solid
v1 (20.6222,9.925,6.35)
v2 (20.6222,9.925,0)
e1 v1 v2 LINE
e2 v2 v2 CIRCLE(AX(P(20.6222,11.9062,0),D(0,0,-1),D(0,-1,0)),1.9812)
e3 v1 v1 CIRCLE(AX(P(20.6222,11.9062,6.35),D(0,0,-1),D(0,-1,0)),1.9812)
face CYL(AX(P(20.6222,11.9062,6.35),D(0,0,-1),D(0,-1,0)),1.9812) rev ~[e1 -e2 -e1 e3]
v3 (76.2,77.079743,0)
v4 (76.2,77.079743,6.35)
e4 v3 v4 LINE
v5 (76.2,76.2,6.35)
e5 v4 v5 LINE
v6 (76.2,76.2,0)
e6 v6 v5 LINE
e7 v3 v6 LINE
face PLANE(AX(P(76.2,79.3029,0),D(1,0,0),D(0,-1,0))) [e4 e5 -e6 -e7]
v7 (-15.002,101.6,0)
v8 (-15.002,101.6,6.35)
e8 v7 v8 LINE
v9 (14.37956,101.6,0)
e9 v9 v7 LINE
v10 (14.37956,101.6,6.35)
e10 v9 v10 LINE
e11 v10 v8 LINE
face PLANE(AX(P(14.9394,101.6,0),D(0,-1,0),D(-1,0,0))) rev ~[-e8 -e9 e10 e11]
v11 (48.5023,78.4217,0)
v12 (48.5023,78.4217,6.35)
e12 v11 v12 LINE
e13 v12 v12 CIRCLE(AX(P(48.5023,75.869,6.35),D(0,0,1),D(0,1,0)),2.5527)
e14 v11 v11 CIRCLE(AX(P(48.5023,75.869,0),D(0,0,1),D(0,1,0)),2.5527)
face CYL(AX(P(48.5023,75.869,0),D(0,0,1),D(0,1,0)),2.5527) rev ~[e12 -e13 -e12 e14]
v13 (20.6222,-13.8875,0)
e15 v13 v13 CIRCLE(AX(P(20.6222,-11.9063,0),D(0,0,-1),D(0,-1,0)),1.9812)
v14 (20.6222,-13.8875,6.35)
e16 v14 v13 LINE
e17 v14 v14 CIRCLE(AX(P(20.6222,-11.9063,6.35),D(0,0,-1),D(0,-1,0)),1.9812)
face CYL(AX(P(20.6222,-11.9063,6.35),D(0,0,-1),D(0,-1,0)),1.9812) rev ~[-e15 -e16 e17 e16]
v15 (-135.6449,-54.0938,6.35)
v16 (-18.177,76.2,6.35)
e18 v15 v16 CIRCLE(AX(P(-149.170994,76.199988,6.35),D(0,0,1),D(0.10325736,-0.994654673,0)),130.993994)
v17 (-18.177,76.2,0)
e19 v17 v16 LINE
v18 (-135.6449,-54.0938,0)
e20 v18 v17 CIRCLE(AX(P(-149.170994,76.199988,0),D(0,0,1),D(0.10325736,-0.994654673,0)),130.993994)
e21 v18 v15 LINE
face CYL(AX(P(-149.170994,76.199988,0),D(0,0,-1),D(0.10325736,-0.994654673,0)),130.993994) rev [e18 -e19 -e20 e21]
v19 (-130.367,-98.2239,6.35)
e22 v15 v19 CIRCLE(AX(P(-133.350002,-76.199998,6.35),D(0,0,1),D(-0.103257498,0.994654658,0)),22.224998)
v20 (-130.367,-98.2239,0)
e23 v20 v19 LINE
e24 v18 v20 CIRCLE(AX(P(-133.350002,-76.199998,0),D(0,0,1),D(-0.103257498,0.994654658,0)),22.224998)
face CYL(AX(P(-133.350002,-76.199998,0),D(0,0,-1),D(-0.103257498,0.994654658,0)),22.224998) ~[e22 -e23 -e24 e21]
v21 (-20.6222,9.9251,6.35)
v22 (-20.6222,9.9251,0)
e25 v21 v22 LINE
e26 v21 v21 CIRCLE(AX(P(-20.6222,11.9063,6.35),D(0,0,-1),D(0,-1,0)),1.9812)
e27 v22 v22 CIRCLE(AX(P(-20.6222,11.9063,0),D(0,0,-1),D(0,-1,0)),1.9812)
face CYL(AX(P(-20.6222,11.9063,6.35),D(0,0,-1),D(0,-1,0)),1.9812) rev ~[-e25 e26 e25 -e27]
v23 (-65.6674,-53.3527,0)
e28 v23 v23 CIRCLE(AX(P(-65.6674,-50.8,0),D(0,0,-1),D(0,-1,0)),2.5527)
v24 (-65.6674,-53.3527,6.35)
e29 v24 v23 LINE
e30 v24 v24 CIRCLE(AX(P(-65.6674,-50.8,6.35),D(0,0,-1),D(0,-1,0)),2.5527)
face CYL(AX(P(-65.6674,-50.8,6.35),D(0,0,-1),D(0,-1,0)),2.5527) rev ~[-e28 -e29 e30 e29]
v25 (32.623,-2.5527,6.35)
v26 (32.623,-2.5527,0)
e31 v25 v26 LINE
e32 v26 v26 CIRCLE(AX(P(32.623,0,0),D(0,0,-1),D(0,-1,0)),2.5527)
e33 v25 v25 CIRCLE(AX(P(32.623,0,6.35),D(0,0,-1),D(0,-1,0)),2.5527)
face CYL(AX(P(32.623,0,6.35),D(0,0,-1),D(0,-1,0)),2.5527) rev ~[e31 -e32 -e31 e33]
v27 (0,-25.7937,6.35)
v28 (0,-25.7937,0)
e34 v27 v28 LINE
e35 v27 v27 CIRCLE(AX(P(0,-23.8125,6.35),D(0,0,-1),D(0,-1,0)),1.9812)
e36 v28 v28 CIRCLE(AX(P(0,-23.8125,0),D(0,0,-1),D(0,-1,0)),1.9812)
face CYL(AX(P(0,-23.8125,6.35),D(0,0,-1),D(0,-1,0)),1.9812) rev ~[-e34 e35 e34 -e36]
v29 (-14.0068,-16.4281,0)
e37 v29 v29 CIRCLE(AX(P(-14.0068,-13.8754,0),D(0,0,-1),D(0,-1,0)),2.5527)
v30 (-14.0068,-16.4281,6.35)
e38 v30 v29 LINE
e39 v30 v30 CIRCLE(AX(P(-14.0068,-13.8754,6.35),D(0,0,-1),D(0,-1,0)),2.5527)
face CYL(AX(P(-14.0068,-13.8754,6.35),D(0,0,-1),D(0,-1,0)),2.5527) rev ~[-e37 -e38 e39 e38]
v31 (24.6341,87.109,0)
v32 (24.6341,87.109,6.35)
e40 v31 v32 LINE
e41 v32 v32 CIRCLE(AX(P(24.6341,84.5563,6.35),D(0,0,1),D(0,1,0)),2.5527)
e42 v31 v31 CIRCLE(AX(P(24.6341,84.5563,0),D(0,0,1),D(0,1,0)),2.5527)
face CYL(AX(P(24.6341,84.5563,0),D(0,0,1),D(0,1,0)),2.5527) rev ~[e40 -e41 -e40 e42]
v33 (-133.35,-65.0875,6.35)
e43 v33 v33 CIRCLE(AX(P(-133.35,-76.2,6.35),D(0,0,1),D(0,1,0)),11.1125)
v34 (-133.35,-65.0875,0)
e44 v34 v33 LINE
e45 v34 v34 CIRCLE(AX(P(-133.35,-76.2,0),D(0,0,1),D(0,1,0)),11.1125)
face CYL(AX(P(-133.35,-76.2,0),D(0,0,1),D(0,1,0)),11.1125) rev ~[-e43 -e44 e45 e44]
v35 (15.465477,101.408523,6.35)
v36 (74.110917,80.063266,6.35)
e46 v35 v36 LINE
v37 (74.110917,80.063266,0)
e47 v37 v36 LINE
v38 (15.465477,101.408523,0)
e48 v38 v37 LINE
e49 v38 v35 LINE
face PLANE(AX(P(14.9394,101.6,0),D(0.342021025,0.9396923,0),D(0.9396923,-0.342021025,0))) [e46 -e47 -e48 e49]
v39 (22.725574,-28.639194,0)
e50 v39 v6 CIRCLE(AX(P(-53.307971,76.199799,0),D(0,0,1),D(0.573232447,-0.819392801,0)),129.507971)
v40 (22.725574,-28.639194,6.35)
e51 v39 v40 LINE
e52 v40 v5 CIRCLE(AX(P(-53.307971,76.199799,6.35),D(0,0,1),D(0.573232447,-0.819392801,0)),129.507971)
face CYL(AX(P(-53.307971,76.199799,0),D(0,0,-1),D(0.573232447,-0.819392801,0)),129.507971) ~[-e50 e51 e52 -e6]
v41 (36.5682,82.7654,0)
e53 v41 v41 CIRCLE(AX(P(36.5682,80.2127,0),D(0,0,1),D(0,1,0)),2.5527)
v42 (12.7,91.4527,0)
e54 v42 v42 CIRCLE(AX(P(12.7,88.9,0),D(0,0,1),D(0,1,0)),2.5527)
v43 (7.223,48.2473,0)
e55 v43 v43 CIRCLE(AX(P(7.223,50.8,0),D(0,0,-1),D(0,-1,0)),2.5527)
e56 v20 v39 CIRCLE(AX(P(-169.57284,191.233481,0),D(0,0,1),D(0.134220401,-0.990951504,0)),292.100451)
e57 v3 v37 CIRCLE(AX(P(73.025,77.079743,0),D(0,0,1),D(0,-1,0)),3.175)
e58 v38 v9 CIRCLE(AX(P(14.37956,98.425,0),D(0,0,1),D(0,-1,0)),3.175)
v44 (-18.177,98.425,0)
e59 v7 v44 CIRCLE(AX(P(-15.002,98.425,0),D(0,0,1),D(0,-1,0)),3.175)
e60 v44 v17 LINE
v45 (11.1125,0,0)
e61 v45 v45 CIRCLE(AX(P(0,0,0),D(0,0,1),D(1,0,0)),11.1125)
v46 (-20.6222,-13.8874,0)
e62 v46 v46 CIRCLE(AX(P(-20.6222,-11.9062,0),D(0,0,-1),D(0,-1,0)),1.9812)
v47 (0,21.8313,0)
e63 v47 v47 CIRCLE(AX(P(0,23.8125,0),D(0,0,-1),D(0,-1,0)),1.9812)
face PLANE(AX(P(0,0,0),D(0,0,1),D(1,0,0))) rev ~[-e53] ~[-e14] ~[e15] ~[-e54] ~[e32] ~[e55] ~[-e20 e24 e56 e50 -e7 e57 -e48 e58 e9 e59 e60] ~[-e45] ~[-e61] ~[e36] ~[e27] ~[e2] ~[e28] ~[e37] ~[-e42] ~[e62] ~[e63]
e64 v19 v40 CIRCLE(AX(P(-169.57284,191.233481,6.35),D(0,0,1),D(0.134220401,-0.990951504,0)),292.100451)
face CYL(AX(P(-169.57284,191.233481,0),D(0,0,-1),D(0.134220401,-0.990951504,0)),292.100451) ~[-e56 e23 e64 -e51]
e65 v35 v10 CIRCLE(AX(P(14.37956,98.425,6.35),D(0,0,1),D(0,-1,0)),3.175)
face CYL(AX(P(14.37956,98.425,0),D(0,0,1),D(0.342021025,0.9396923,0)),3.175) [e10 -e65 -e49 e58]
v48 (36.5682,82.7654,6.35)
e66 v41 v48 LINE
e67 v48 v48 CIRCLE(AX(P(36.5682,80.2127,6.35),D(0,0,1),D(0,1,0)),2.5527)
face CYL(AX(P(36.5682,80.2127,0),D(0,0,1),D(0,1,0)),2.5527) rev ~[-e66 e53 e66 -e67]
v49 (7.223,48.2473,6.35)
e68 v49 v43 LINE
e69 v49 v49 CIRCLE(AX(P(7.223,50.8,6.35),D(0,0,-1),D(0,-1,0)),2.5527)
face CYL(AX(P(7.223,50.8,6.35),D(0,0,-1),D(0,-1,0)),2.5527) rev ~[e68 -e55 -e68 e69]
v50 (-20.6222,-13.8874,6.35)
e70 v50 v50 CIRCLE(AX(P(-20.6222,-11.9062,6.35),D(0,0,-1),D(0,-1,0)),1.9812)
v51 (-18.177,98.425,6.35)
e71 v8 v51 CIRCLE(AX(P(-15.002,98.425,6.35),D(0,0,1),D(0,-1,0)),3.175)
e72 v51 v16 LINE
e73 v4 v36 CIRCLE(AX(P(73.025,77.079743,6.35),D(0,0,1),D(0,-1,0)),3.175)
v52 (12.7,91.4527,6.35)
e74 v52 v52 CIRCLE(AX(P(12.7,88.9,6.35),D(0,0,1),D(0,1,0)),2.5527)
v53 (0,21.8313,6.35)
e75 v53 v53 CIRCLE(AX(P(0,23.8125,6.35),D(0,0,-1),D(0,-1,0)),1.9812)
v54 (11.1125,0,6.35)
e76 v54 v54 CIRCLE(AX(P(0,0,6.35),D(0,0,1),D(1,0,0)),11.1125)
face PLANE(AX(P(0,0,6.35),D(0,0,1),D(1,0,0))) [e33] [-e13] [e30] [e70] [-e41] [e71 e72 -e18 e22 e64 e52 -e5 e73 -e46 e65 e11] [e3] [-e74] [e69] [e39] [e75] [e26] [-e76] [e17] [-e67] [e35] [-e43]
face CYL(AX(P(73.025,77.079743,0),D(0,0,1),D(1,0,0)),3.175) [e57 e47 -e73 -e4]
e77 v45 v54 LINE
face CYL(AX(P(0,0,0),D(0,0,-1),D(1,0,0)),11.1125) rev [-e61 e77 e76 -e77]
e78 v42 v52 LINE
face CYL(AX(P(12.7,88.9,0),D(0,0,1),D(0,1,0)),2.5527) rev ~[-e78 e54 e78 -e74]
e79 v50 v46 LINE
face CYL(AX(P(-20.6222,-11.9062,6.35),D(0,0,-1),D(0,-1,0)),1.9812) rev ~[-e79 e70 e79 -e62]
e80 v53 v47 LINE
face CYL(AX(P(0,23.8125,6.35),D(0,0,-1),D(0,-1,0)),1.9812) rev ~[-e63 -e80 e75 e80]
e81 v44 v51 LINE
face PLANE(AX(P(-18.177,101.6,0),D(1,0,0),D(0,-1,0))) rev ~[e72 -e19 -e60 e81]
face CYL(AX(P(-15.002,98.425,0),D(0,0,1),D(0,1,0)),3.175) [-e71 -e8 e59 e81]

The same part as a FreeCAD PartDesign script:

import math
import FreeCAD as App
import Part
import Sketcher
from FreeCAD import Vector
Q = App.Units.Quantity


def edges_at(feature, points):
    """Names of the edges that pass closest to the given points."""
    edges = feature.Shape.Edges
    near = lambda p: min(range(len(edges)), key=lambda i: edges[i].distToShape(Part.Vertex(*p))[0])
    return sorted({f"Edge{near(p) + 1}" for p in points})

doc = App.newDocument("Part")
body = doc.addObject("PartDesign::Body", "Body")

# Sketch on XY plane
sketch1 = body.newObject("Sketcher::SketchObject", "Sketch")
sketch1.AttachmentSupport = (doc.getObject("XY_Plane"), [""])
sketch1.MapMode = "FlatFace"
sketch1.addGeometry([
    Part.LineSegment(Vector(76.2, 76.2, 0), Vector(76.2, 79.3029, 0)),  # 0
    Part.LineSegment(Vector(76.2, 79.3029, 0), Vector(14.9394, 101.6, 0)),  # 1
    Part.LineSegment(Vector(14.9394, 101.6, 0), Vector(-18.177, 101.6, 0)),  # 2
    Part.LineSegment(Vector(-18.177, 101.6, 0), Vector(-18.177, 76.2, 0)),  # 3
    Part.ArcOfCircle(Part.Circle(Vector(-149.171, 76.2, 0), Vector(0, 0, 1), 130.994006), math.radians(-84.073223), math.radians(0)),  # 4
    Part.ArcOfCircle(Part.Circle(Vector(-133.35, -76.2, 0), Vector(0, 0, 1), 22.225), math.radians(95.926788), math.radians(277.713417)),  # 5
    Part.ArcOfCircle(Part.Circle(Vector(-169.5727, 191.233, 0), Vector(0, 0, 1), 292.099955), math.radians(-82.286473), math.radians(-48.827345)),  # 6
    Part.ArcOfCircle(Part.Circle(Vector(-53.3082, 76.2, 0), Vector(0, 0, 1), 129.508267), math.radians(-54.048805), math.radians(0)),  # 7
    Part.Circle(Vector(0, 0, 0), Vector(0, 0, 1), 11.1125),  # 8
], False)
sketch1.addConstraint([
    Sketcher.Constraint("Coincident", 0, 2, 1, 1),
    Sketcher.Constraint("Coincident", 1, 2, 2, 1),
    Sketcher.Constraint("Coincident", 2, 2, 3, 1),
    Sketcher.Constraint("Tangent", 3, 2, 4, 2),
    Sketcher.Constraint("Tangent", 4, 1, 5, 1),
    Sketcher.Constraint("Tangent", 5, 2, 6, 1),
    Sketcher.Constraint("Coincident", 6, 2, 7, 1),
    Sketcher.Constraint("Tangent", 7, 2, 0, 1),
    Sketcher.Constraint("Vertical", 0),
    Sketcher.Constraint("Horizontal", 2),
    Sketcher.Constraint("Vertical", 3),
    Sketcher.Constraint("Coincident", 8, 3, -1, 1),
    Sketcher.Constraint("Horizontal", 4, 3, 7, 3),
    Sketcher.Constraint("Radius", 6, Q("11.5 in")),
    Sketcher.Constraint("DistanceY", 3, 2, 3, 1, Q("1 in")),
    Sketcher.Constraint("Diameter", 8, Q("0.875 in")),
    Sketcher.Constraint("DistanceY", -1, 1, 4, 3, Q("3 in")),
    Sketcher.Constraint("DistanceY", 5, 3, -1, 1, Q("3 in")),
    Sketcher.Constraint("DistanceX", -1, 1, 0, 2, Q("3 in")),
    Sketcher.Constraint("Radius", 5, Q("0.875 in")),
    Sketcher.Constraint("Angle", 1, Q("160 deg")),
    Sketcher.Constraint("DistanceX", 5, 3, -1, 1, Q("5.25 in")),
    Sketcher.Constraint("Radius", 4, Q("130.994 mm")),
    Sketcher.Constraint("Radius", 7, Q("129.5083 mm")),
    Sketcher.Constraint("DistanceX", 2, 2, 2, 1, Q("1.3038 in")),
    Sketcher.Constraint("DistanceX", 6, 3, -1, 1, Q("6.6761 in")),
])
pad1 = body.newObject("PartDesign::Pad", "Pad")
pad1.Profile = sketch1
pad1.Length = Q("0.25 in")

# Sketch on XY plane
sketch2 = body.newObject("Sketcher::SketchObject", "Sketch001")
sketch2.AttachmentSupport = (doc.getObject("XY_Plane"), [""])
sketch2.MapMode = "FlatFace"
sketch2.addGeometry([
    Part.Circle(Vector(36.5682, 80.2127, 0), Vector(0, 0, 1), 2.5527),
    Part.Circle(Vector(48.5023, 75.869, 0), Vector(0, 0, 1), 2.5527),
    Part.Circle(Vector(24.6341, 84.5563, 0), Vector(0, 0, 1), 2.5527),
    Part.Circle(Vector(12.7, 88.9, 0), Vector(0, 0, 1), 2.5527),
], False)
sketch2.addConstraint([
    Sketcher.Constraint("Equal", 0, 1),
    Sketcher.Constraint("Equal", 1, 2),
    Sketcher.Constraint("Equal", 2, 3),
    Sketcher.Constraint("Diameter", 0, Q("0.201 in")),
    Sketcher.Constraint("DistanceX", -1, 1, 3, 3, Q("0.5 in")),
    Sketcher.Constraint("DistanceY", -1, 1, 3, 3, Q("3.5 in")),
    Sketcher.Constraint("DistanceY", -1, 1, 2, 3, Q("3.329 in")),
    Sketcher.Constraint("DistanceY", 1, 3, 0, 3, Q("0.171 in")),
    Sketcher.Constraint("DistanceY", 0, 3, 2, 3, Q("0.171 in")),
    Sketcher.Constraint("DistanceX", -1, 1, 0, 3, Q("1.4397 in")),
    Sketcher.Constraint("DistanceX", 2, 3, 1, 3, Q("0.9397 in")),
    Sketcher.Constraint("DistanceX", -1, 1, 1, 3, Q("48.5023 mm")),
])
doc.recompute()
hole = body.newObject("PartDesign::Hole", "Hole")
hole.Profile = sketch2
hole.ThreadType = "None"
hole.Diameter = Q("0.201 in")
hole.DepthType = "ThroughAll"
hole.Reversed = True

# Sketch on XY plane
sketch3 = body.newObject("Sketcher::SketchObject", "Sketch002")
sketch3.AttachmentSupport = (doc.getObject("XY_Plane"), [""])
sketch3.MapMode = "FlatFace"
sketch3.addGeometry(Part.Circle(Vector(-133.35, -76.2, 0), Vector(0, 0, 1), 11.1125), False)
sketch3.addConstraint([
    Sketcher.Constraint("Diameter", 0, Q("0.875 in")),
    Sketcher.Constraint("DistanceY", 0, 3, -1, 1, Q("3 in")),
    Sketcher.Constraint("DistanceX", 0, 3, -1, 1, Q("5.25 in")),
])
doc.recompute()
hole2 = body.newObject("PartDesign::Hole", "Hole001")
hole2.Profile = sketch3
hole2.ThreadType = "None"
hole2.Diameter = Q("0.875 in")
hole2.DepthType = "ThroughAll"
hole2.Reversed = True
doc.recompute()

fillet = body.newObject("PartDesign::Fillet", "Fillet")
fillet.Base = (hole2, edges_at(hole2, [(76.2, 79.303, 3.175), (14.939, 101.6, 3.175), (-18.177, 101.6, 3.175)]))
fillet.Radius = Q("0.125 in")

# Sketch on XY plane
sketch4 = body.newObject("Sketcher::SketchObject", "Sketch003")
sketch4.AttachmentSupport = (doc.getObject("XY_Plane"), [""])
sketch4.MapMode = "FlatFace"
sketch4.AttachmentOffset = App.Placement(Vector(0, 0, 0.25 * 25.4), App.Rotation())
sketch4.addGeometry([
    Part.Circle(Vector(0, 23.8125, 0), Vector(0, 0, 1), 1.9812),  # 0
    Part.Circle(Vector(-20.6222, 11.9063, 0), Vector(0, 0, 1), 1.9812),  # 1
    Part.Circle(Vector(-20.6222, -11.9062, 0), Vector(0, 0, 1), 1.9812),  # 2
    Part.Circle(Vector(0, -23.8125, 0), Vector(0, 0, 1), 1.9812),  # 3
    Part.Circle(Vector(20.6222, -11.9063, 0), Vector(0, 0, 1), 1.9812),  # 4
    Part.Circle(Vector(20.6222, 11.9062, 0), Vector(0, 0, 1), 1.9812),  # 5
], False)
sketch4.addConstraint([
    Sketcher.Constraint("Equal", 0, 1),
    Sketcher.Constraint("Equal", 1, 2),
    Sketcher.Constraint("Equal", 2, 3),
    Sketcher.Constraint("Equal", 3, 4),
    Sketcher.Constraint("Equal", 4, 5),
    Sketcher.Constraint("Symmetric", 0, 3, 3, 3, -1, 1),
    Sketcher.Constraint("Symmetric", 1, 3, 4, 3, -1, 1),
    Sketcher.Constraint("Symmetric", 2, 3, 5, 3, -1, 1),
    Sketcher.Constraint("Symmetric", 2, 3, 4, 3, -2),
    Sketcher.Constraint("PointOnObject", 0, 3, -2),
    Sketcher.Constraint("Diameter", 0, Q("0.156 in")),
    Sketcher.Constraint("DistanceY", -1, 1, 0, 3, Q("0.9375 in")),
    Sketcher.Constraint("DistanceY", -1, 1, 1, 3, Q("0.468752 in")),
    Sketcher.Constraint("DistanceX", 1, 3, -1, 1, Q("0.8119 in")),
])
doc.recompute()
hole3 = body.newObject("PartDesign::Hole", "Hole002")
hole3.Profile = sketch4
hole3.ThreadType = "None"
hole3.Diameter = Q("0.156 in")
hole3.DepthType = "ThroughAll"

# Sketch on XY plane
sketch5 = body.newObject("Sketcher::SketchObject", "Sketch004")
sketch5.AttachmentSupport = (doc.getObject("XY_Plane"), [""])
sketch5.MapMode = "FlatFace"
sketch5.AttachmentOffset = App.Placement(Vector(0, 0, 0.25 * 25.4), App.Rotation())
sketch5.addGeometry([
    Part.Circle(Vector(7.223, 50.8, 0), Vector(0, 0, 1), 2.5527),
    Part.Circle(Vector(32.623, 0, 0), Vector(0, 0, 1), 2.5527),
    Part.Circle(Vector(-65.6674, -50.8, 0), Vector(0, 0, 1), 2.5527),
    Part.Circle(Vector(-14.0068, -13.8754, 0), Vector(0, 0, 1), 2.5527),
], False)
sketch5.addConstraint([
    Sketcher.Constraint("Equal", 0, 1),
    Sketcher.Constraint("Equal", 1, 2),
    Sketcher.Constraint("Equal", 2, 3),
    Sketcher.Constraint("PointOnObject", 1, 3, -1),
    Sketcher.Constraint("Diameter", 0, Q("0.201 in")),
    Sketcher.Constraint("DistanceY", -1, 1, 0, 3, Q("2 in")),
    Sketcher.Constraint("DistanceY", 2, 3, -1, 1, Q("2 in")),
    Sketcher.Constraint("DistanceX", 0, 3, 1, 3, Q("1 in")),
    Sketcher.Constraint("DistanceX", 2, 3, 1, 3, Q("3.8697 in")),
    Sketcher.Constraint("DistanceX", -1, 1, 0, 3, Q("7.223 mm")),
    Sketcher.Constraint("DistanceX", 3, 3, -1, 1, Q("14.0068 mm")),
    Sketcher.Constraint("DistanceY", 3, 3, -1, 1, Q("13.8754 mm")),
])
doc.recompute()
hole4 = body.newObject("PartDesign::Hole", "Hole003")
hole4.Profile = sketch5
hole4.ThreadType = "None"
hole4.Diameter = Q("0.201 in")
hole4.DepthType = "ThroughAll"

doc.recompute()
